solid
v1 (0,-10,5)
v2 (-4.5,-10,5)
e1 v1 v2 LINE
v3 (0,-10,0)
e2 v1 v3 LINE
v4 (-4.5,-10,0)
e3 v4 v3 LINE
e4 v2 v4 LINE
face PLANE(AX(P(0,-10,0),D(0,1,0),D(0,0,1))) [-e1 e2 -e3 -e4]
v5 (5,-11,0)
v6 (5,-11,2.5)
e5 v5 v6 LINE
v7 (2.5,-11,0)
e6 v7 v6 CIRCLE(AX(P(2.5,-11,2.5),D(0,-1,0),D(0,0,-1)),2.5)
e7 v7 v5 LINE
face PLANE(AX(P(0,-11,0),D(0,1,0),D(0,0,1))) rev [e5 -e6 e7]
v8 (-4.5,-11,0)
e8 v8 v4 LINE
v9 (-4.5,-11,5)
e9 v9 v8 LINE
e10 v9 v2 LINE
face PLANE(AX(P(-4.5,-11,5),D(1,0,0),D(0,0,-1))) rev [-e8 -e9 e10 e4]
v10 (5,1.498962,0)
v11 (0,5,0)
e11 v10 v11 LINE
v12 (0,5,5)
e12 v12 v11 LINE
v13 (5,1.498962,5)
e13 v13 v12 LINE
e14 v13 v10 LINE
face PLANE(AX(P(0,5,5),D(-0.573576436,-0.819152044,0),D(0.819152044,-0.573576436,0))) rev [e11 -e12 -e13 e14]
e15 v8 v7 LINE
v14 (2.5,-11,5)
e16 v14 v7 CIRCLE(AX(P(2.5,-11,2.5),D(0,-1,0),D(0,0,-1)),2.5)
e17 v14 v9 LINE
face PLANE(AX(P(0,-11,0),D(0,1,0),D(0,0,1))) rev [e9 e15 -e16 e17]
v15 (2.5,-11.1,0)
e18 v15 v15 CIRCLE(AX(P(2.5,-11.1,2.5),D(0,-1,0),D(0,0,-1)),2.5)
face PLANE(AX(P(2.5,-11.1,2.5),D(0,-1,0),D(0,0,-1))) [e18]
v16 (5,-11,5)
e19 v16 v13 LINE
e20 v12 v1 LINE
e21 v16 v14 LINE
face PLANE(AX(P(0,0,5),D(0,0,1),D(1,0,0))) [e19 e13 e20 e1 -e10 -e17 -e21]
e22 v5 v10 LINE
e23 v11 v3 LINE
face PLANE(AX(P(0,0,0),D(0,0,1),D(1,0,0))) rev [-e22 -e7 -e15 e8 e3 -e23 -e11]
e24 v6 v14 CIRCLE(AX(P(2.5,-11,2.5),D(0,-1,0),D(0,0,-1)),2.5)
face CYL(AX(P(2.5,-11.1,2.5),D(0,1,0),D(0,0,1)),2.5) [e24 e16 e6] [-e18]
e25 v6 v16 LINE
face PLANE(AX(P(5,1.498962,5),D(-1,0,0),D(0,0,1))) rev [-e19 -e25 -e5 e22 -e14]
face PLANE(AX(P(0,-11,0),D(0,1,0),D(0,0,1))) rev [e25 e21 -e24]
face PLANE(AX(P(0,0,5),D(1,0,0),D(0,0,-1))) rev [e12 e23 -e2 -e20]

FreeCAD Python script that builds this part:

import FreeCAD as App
import Part
import Sketcher

V = App.Vector
Q = App.Units.Quantity


def add_polygon(sketch, points):
    """Adds a closed chain of lines whose ends are joined by coincident constraints."""
    first, n = sketch.GeometryCount, len(points)
    for a, b in zip(points, points[1:] + points[:1]):
        sketch.addGeometry(Part.LineSegment(App.Vector(*a, 0), App.Vector(*b, 0)), False)
    for i in range(n):
        sketch.addConstraint(Sketcher.Constraint("Coincident", first + i, 2, first + (i + 1) % n, 1))

doc = App.newDocument("Part")
body = doc.addObject("PartDesign::Body", "Body")

# Sketch on XY plane
sketch1 = body.newObject("Sketcher::SketchObject", "Sketch")
sketch1.AttachmentSupport = (doc.getObject("XY_Plane"), [""])
sketch1.MapMode = "FlatFace"
add_polygon(sketch1, [(0, 5), (0, -10), (5, -10), (5, 1)])  # lines 0-3
sketch1.addConstraint(Sketcher.Constraint("Vertical", 0))
sketch1.addConstraint(Sketcher.Constraint("Horizontal", 1))
sketch1.addConstraint(Sketcher.Constraint("Vertical", 2))
sketch1.addConstraint(Sketcher.Constraint("PointOnObject", 0, 2, -2))
sketch1.addConstraint(Sketcher.Constraint("DistanceX", 1, 1, 1, 2, 5.0))
sketch1.addConstraint(Sketcher.Constraint("DistanceY", 0, 2, 0, 1, 15.0))
sketch1.addConstraint(Sketcher.Constraint("Angle", 3, Q("145 deg")))
sketch1.addConstraint(Sketcher.Constraint("DistanceY", 0, 2, -1, 1, 10.0))
pad1 = body.newObject("PartDesign::Pad", "Pad")
pad1.Profile = sketch1
pad1.Length = 5

# Sketch on XZ plane
sketch2 = body.newObject("Sketcher::SketchObject", "Sketch001")
sketch2.AttachmentSupport = (doc.getObject("XZ_Plane"), [""])
sketch2.MapMode = "FlatFace"
sketch2.AttachmentOffset = App.Placement(V(0, 0, 10), App.Rotation())
add_polygon(sketch2, [(-4, 5), (-4, 0), (5, 0), (5, 5)])  # lines 0-3
sketch2.addConstraint(Sketcher.Constraint("Vertical", 0))
sketch2.addConstraint(Sketcher.Constraint("Horizontal", 1))
sketch2.addConstraint(Sketcher.Constraint("Vertical", 2))
sketch2.addConstraint(Sketcher.Constraint("Horizontal", 3))
sketch2.addConstraint(Sketcher.Constraint("PointOnObject", 0, 2, -1))
sketch2.addConstraint(Sketcher.Constraint("DistanceY", 0, 2, 0, 1, 5.0))
sketch2.addConstraint(Sketcher.Constraint("DistanceX", 1, 1, 1, 2, 9.5))
sketch2.addConstraint(Sketcher.Constraint("DistanceX", -1, 1, 1, 2, 5.0))
pad2 = body.newObject("PartDesign::Pad", "Pad001")
pad2.Profile = sketch2
pad2.Length = 1

# Sketch on XZ plane
sketch3 = body.newObject("Sketcher::SketchObject", "Sketch002")
sketch3.AttachmentSupport = (doc.getObject("XZ_Plane"), [""])
sketch3.MapMode = "FlatFace"
sketch3.AttachmentOffset = App.Placement(V(0, 0, 11), App.Rotation())
sketch3.addGeometry(Part.Circle(V(2.5, 2.5, 0), V(0, 0, 1), 2.5), False)
sketch3.addConstraint(Sketcher.Constraint("Diameter", 0, 5.0))
sketch3.addConstraint(Sketcher.Constraint("DistanceX", -1, 1, 0, 3, 2.5))
sketch3.addConstraint(Sketcher.Constraint("DistanceY", -1, 1, 0, 3, 2.5))
pad3 = body.newObject("PartDesign::Pad", "Pad002")
pad3.Profile = sketch3
pad3.Length = 0.1

doc.recompute()
